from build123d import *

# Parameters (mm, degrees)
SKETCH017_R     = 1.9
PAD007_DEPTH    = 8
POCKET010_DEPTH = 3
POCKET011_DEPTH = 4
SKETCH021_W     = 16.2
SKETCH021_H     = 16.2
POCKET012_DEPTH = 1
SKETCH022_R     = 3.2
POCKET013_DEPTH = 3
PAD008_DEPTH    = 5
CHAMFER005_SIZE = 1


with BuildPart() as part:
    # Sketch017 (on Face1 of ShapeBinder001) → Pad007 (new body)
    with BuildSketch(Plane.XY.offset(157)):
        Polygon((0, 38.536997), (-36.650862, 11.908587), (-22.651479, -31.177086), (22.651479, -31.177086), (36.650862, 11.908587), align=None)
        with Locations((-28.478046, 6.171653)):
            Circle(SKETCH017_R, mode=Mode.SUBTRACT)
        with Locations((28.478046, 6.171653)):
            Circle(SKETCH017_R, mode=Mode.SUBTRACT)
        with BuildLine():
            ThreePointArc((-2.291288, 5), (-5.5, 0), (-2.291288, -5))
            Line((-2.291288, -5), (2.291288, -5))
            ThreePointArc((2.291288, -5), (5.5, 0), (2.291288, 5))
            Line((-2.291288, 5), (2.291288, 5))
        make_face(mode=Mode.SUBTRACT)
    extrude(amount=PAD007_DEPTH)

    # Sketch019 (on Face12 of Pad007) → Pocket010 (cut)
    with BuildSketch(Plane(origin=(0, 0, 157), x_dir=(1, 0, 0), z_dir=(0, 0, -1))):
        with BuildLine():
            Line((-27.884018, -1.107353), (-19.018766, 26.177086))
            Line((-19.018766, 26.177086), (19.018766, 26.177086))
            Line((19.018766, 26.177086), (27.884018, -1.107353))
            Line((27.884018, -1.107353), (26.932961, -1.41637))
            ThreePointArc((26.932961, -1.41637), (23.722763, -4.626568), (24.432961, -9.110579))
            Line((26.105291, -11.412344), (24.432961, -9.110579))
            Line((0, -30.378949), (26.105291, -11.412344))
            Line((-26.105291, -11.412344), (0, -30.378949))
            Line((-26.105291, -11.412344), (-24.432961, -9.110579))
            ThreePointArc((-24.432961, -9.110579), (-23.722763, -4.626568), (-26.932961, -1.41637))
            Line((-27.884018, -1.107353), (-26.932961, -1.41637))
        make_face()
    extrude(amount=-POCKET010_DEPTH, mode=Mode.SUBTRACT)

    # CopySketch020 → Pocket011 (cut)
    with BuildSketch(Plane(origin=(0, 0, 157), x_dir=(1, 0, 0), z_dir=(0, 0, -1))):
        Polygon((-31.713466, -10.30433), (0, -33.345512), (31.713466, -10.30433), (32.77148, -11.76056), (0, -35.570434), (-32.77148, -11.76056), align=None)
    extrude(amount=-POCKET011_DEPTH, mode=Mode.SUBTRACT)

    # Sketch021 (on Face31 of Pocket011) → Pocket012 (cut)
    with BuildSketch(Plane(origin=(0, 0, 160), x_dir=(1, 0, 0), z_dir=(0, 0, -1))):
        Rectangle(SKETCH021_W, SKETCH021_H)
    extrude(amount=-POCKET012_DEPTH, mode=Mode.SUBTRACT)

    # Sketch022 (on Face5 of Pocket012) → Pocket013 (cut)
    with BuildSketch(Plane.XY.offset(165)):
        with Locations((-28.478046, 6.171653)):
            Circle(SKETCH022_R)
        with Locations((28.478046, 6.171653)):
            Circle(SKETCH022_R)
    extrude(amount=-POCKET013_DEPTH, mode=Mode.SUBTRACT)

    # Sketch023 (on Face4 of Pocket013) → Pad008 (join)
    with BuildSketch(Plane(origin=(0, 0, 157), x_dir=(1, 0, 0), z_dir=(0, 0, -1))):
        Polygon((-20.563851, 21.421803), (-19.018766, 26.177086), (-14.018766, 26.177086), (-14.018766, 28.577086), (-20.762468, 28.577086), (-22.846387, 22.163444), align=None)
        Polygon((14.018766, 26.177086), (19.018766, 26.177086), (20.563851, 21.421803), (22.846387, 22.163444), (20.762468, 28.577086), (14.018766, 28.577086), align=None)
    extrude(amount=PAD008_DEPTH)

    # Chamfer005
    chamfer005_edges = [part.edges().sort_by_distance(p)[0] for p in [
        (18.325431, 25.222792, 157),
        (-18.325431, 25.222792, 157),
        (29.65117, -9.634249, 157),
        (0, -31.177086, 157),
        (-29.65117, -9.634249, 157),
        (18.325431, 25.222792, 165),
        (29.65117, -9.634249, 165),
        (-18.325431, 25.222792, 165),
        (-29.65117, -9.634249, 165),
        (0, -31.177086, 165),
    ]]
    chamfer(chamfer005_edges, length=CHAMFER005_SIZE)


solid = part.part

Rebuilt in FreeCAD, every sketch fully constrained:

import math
import FreeCAD as App
import Part
import Sketcher

V = App.Vector
Q = App.Units.Quantity


def edges_at(feature, points):
    """Names of the edges that pass closest to the given points."""
    edges = feature.Shape.Edges
    near = lambda p: min(range(len(edges)), key=lambda i: edges[i].distToShape(Part.Vertex(*p))[0])
    return sorted({f"Edge{near(p) + 1}" for p in points})

doc = App.newDocument("Part")
body = doc.addObject("PartDesign::Body", "Body")

# Sketch on XY plane
sketch1 = body.newObject("Sketcher::SketchObject", "Sketch")
sketch1.AttachmentSupport = (doc.getObject("XY_Plane"), [""])
sketch1.MapMode = "FlatFace"
sketch1.AttachmentOffset = App.Placement(V(0, 0, 157), App.Rotation())
sketch1.addGeometry([
    Part.LineSegment(V(0, 38.5, 0), V(-36.7, 11.9, 0)),  # 0
    Part.LineSegment(V(-36.7, 11.9, 0), V(-22.7, -31.2, 0)),  # 1
    Part.LineSegment(V(-22.7, -31.2, 0), V(22.7, -31.2, 0)),  # 2
    Part.LineSegment(V(22.7, -31.2, 0), V(36.7, 11.9, 0)),  # 3
    Part.LineSegment(V(36.7, 11.9, 0), V(0, 38.5, 0)),  # 4
    Part.ArcOfCircle(Part.Circle(V(0, 0, 0), V(0, 0, 1), 5.5), math.radians(115), math.radians(245)),  # 5
    Part.LineSegment(V(-2.3, 5, 0), V(2.3, 5, 0)),  # 6
    Part.ArcOfCircle(Part.Circle(V(0, 0, 0), V(0, 0, 1), 5.5), math.radians(-65), math.radians(65)),  # 7
    Part.LineSegment(V(2.3, -5, 0), V(-2.3, -5, 0)),  # 8
    Part.Circle(V(-28.5, 6.2, 0), V(0, 0, 1), 1.9),  # 9
    Part.Circle(V(28.5, 6.2, 0), V(0, 0, 1), 1.9),  # 10
], False)
sketch1.addConstraint([
    Sketcher.Constraint("Coincident", 0, 2, 1, 1),
    Sketcher.Constraint("Coincident", 1, 2, 2, 1),
    Sketcher.Constraint("Coincident", 2, 2, 3, 1),
    Sketcher.Constraint("Coincident", 3, 2, 4, 1),
    Sketcher.Constraint("Coincident", 4, 2, 0, 1),
    Sketcher.Constraint("Coincident", 5, 1, 6, 1),
    Sketcher.Constraint("Coincident", 6, 2, 7, 2),
    Sketcher.Constraint("Coincident", 7, 1, 8, 1),
    Sketcher.Constraint("Coincident", 8, 2, 5, 2),
    Sketcher.Constraint("Horizontal", 2),
    Sketcher.Constraint("Horizontal", 6),
    Sketcher.Constraint("Horizontal", 8),
    Sketcher.Constraint("Coincident", 5, 3, -1, 1),
    Sketcher.Constraint("Coincident", 7, 3, -1, 1),
    Sketcher.Constraint("Equal", 5, 7),
    Sketcher.Constraint("Equal", 9, 10),
    Sketcher.Constraint("Symmetric", 9, 3, 10, 3, -2),
    Sketcher.Constraint("Symmetric", 0, 2, 3, 2, -2),
    Sketcher.Constraint("PointOnObject", 4, 2, -2),
    Sketcher.Constraint("Vertical", 6, 2, 7, 1),
    Sketcher.Constraint("Equal", 0, 1),
    Sketcher.Constraint("Equal", 1, 3),
    Sketcher.Constraint("Diameter", 9, 3.8),
    Sketcher.Constraint("Radius", 5, 5.5),
    Sketcher.Constraint("Angle", 0, Q("-144 deg")),
    Sketcher.Constraint("Angle", 1, Q("-72.000001 deg")),
    Sketcher.Constraint("DistanceY", -1, 1, 5, 1, 5.0),
    Sketcher.Constraint("DistanceX", 2, 1, 2, 2, 45.302958),
    Sketcher.Constraint("DistanceX", 9, 3, 10, 3, 56.956092),
    Sketcher.Constraint("DistanceY", 1, 2, 9, 3, 37.348739),
    Sketcher.Constraint("DistanceY", -1, 1, 9, 3, 6.171653),
])
pad1 = body.newObject("PartDesign::Pad", "Pad")
pad1.Profile = sketch1
pad1.Length = 8

# Sketch on XY plane
sketch2 = body.newObject("Sketcher::SketchObject", "Sketch001")
sketch2.AttachmentSupport = (doc.getObject("XY_Plane"), [""])
sketch2.MapMode = "FlatFace"
sketch2.AttachmentOffset = App.Placement(V(0, 0, 157), App.Rotation())
sketch2.addGeometry([
    Part.LineSegment(V(-19, -26.2, 0), V(-27.9, 1.1, 0)),  # 0
    Part.LineSegment(V(-27.9, 1.1, 0), V(-26.9, 1.4, 0)),  # 1
    Part.ArcOfCircle(Part.Circle(V(-28.5, 6.2, 0), V(0, 0, 1), 5), math.radians(-72), math.radians(36)),  # 2
    Part.LineSegment(V(-24.4, 9.1, 0), V(-26.1, 11.4, 0)),  # 3
    Part.LineSegment(V(-26.1, 11.4, 0), V(0, 30.4, 0)),  # 4
    Part.LineSegment(V(0, 30.4, 0), V(26.1, 11.4, 0)),  # 5
    Part.LineSegment(V(26.1, 11.4, 0), V(24.4, 9.1, 0)),  # 6
    Part.ArcOfCircle(Part.Circle(V(28.5, 6.2, 0), V(0, 0, 1), 5), math.radians(144), math.radians(252)),  # 7
    Part.LineSegment(V(26.9, 1.4, 0), V(27.9, 1.1, 0)),  # 8
    Part.LineSegment(V(27.9, 1.1, 0), V(19, -26.2, 0)),  # 9
    Part.LineSegment(V(19, -26.2, 0), V(-19, -26.2, 0)),  # 10
], False)
sketch2.addConstraint([
    Sketcher.Constraint("Coincident", 0, 2, 1, 1),
    Sketcher.Constraint("Tangent", 1, 2, 2, 1),
    Sketcher.Constraint("Tangent", 2, 2, 3, 1),
    Sketcher.Constraint("Coincident", 3, 2, 4, 1),
    Sketcher.Constraint("Coincident", 4, 2, 5, 1),
    Sketcher.Constraint("Coincident", 5, 2, 6, 1),
    Sketcher.Constraint("Tangent", 6, 2, 7, 1),
    Sketcher.Constraint("Tangent", 7, 2, 8, 1),
    Sketcher.Constraint("Coincident", 8, 2, 9, 1),
    Sketcher.Constraint("Coincident", 9, 2, 10, 1),
    Sketcher.Constraint("Coincident", 10, 2, 0, 1),
    Sketcher.Constraint("Horizontal", 10),
    Sketcher.Constraint("Equal", 2, 7),
    Sketcher.Constraint("Symmetric", 2, 3, 7, 3, -2),
    Sketcher.Constraint("Symmetric", 3, 2, 5, 2, -2),
    Sketcher.Constraint("Symmetric", 0, 2, 8, 2, -2),
    Sketcher.Constraint("PointOnObject", 4, 2, -2),
    Sketcher.Constraint("Perpendicular", 0, 1),
    Sketcher.Constraint("Perpendicular", 3, 4),
    Sketcher.Constraint("Perpendicular", 8, 9),
    Sketcher.Constraint("Radius", 2, 5.0),
    Sketcher.Constraint("Angle", 0, Q("108.000001 deg")),
    Sketcher.Constraint("Angle", 3, Q("125.999997 deg")),
    Sketcher.Constraint("Distance", 1, 1.0),
    Sketcher.Constraint("DistanceX", 10, 2, 10, 1, 38.037532),
    Sketcher.Constraint("DistanceX", 0, 2, -1, 1, 27.884018),
    Sketcher.Constraint("DistanceY", -1, 1, 1, 2, 1.41637),
    Sketcher.Constraint("DistanceX", 3, 2, -1, 1, 26.105291),
])
pocket1 = body.newObject("PartDesign::Pocket", "Pocket")
pocket1.Profile = sketch2
pocket1.Length = 3
pocket1.Reversed = True

# Sketch on XY plane
sketch3 = body.newObject("Sketcher::SketchObject", "Sketch002")
sketch3.AttachmentSupport = (doc.getObject("XY_Plane"), [""])
sketch3.MapMode = "FlatFace"
sketch3.AttachmentOffset = App.Placement(V(0, 0, 157), App.Rotation())
sketch3.addGeometry([
    Part.LineSegment(V(0, 33.3, 0), V(-31.7, 10.3, 0)),  # 0
    Part.LineSegment(V(-31.7, 10.3, 0), V(-32.8, 11.8, 0)),  # 1
    Part.LineSegment(V(-32.8, 11.8, 0), V(0, 35.6, 0)),  # 2
    Part.LineSegment(V(0, 35.6, 0), V(32.8, 11.8, 0)),  # 3
    Part.LineSegment(V(32.8, 11.8, 0), V(31.7, 10.3, 0)),  # 4
    Part.LineSegment(V(31.7, 10.3, 0), V(0, 33.3, 0)),  # 5
], False)
sketch3.addConstraint([
    Sketcher.Constraint("Coincident", 0, 2, 1, 1),
    Sketcher.Constraint("Coincident", 1, 2, 2, 1),
    Sketcher.Constraint("Coincident", 2, 2, 3, 1),
    Sketcher.Constraint("Coincident", 3, 2, 4, 1),
    Sketcher.Constraint("Coincident", 4, 2, 5, 1),
    Sketcher.Constraint("Coincident", 5, 2, 0, 1),
    Sketcher.Constraint("Symmetric", 1, 2, 3, 2, -2),
    Sketcher.Constraint("Symmetric", 0, 2, 4, 2, -2),
    Sketcher.Constraint("PointOnObject", 2, 2, -2),
    Sketcher.Constraint("PointOnObject", 5, 2, -2),
    Sketcher.Constraint("Perpendicular", 0, 1),
    Sketcher.Constraint("Perpendicular", 1, 2),
    Sketcher.Constraint("Angle", 0, Q("-144 deg")),
    Sketcher.Constraint("Distance", 0, 39.2),
    Sketcher.Constraint("Distance", 1, 1.8),
    Sketcher.Constraint("DistanceY", -1, 1, 0, 2, 10.30433),
])
pocket2 = body.newObject("PartDesign::Pocket", "Pocket001")
pocket2.Profile = sketch3
pocket2.Length = 4
pocket2.Reversed = True

# Sketch on XY plane
sketch4 = body.newObject("Sketcher::SketchObject", "Sketch003")
sketch4.AttachmentSupport = (doc.getObject("XY_Plane"), [""])
sketch4.MapMode = "FlatFace"
sketch4.AttachmentOffset = App.Placement(V(0, 0, 160), App.Rotation())
sketch4.addGeometry([
    Part.LineSegment(V(-8, -8, 0), V(-8, 8, 0)),
    Part.LineSegment(V(-8, 8, 0), V(8, 8, 0)),
    Part.LineSegment(V(8, 8, 0), V(8, -8, 0)),
    Part.LineSegment(V(8, -8, 0), V(-8, -8, 0)),
], False)
sketch4.addConstraint([
    Sketcher.Constraint("Coincident", 0, 2, 1, 1),
    Sketcher.Constraint("Coincident", 1, 2, 2, 1),
    Sketcher.Constraint("Coincident", 2, 2, 3, 1),
    Sketcher.Constraint("Coincident", 3, 2, 0, 1),
    Sketcher.Constraint("Vertical", 0),
    Sketcher.Constraint("Horizontal", 1),
    Sketcher.Constraint("Vertical", 2),
    Sketcher.Constraint("Horizontal", 3),
    Sketcher.Constraint("Symmetric", 0, 2, 2, 2, -1, 1),
    Sketcher.Constraint("Equal", 3, 0),
    Sketcher.Constraint("DistanceX", 1, 1, 1, 2, 16.2),
])
pocket3 = body.newObject("PartDesign::Pocket", "Pocket002")
pocket3.Profile = sketch4
pocket3.Length = 1
pocket3.Reversed = True

# Sketch on XY plane
sketch5 = body.newObject("Sketcher::SketchObject", "Sketch004")
sketch5.AttachmentSupport = (doc.getObject("XY_Plane"), [""])
sketch5.MapMode = "FlatFace"
sketch5.AttachmentOffset = App.Placement(V(0, 0, 165), App.Rotation())
sketch5.addGeometry([
    Part.Circle(V(-28.5, 6.2, 0), V(0, 0, 1), 3.2),
    Part.Circle(V(28.5, 6.2, 0), V(0, 0, 1), 3.2),
], False)
sketch5.addConstraint([
    Sketcher.Constraint("Equal", 0, 1),
    Sketcher.Constraint("Symmetric", 0, 3, 1, 3, -2),
    Sketcher.Constraint("Diameter", 0, 6.4),
    Sketcher.Constraint("DistanceX", 0, 3, 1, 3, 56.956092),
    Sketcher.Constraint("DistanceY", -1, 1, 0, 3, 6.171653),
])
pocket4 = body.newObject("PartDesign::Pocket", "Pocket003")
pocket4.Profile = sketch5
pocket4.Length = 3

# Sketch on XY plane
sketch6 = body.newObject("Sketcher::SketchObject", "Sketch005")
sketch6.AttachmentSupport = (doc.getObject("XY_Plane"), [""])
sketch6.MapMode = "FlatFace"
sketch6.AttachmentOffset = App.Placement(V(0, 0, 157), App.Rotation())
sketch6.addGeometry([
    Part.LineSegment(V(-20.6, -21.4, 0), V(-19, -26.2, 0)),  # 0
    Part.LineSegment(V(-19, -26.2, 0), V(-14, -26.2, 0)),  # 1
    Part.LineSegment(V(-14, -26.2, 0), V(-14, -28.6, 0)),  # 2
    Part.LineSegment(V(-14, -28.6, 0), V(-20.8, -28.6, 0)),  # 3
    Part.LineSegment(V(-20.8, -28.6, 0), V(-22.8, -22.2, 0)),  # 4
    Part.LineSegment(V(-22.8, -22.2, 0), V(-20.6, -21.4, 0)),  # 5
    Part.LineSegment(V(14, -26.2, 0), V(19, -26.2, 0)),  # 6
    Part.LineSegment(V(19, -26.2, 0), V(20.6, -21.4, 0)),  # 7
    Part.LineSegment(V(20.6, -21.4, 0), V(22.8, -22.2, 0)),  # 8
    Part.LineSegment(V(22.8, -22.2, 0), V(20.8, -28.6, 0)),  # 9
    Part.LineSegment(V(20.8, -28.6, 0), V(14, -28.6, 0)),  # 10
    Part.LineSegment(V(14, -28.6, 0), V(14, -26.2, 0)),  # 11
], False)
sketch6.addConstraint([
    Sketcher.Constraint("Coincident", 0, 2, 1, 1),
    Sketcher.Constraint("Coincident", 1, 2, 2, 1),
    Sketcher.Constraint("Coincident", 2, 2, 3, 1),
    Sketcher.Constraint("Coincident", 3, 2, 4, 1),
    Sketcher.Constraint("Coincident", 4, 2, 5, 1),
    Sketcher.Constraint("Coincident", 5, 2, 0, 1),
    Sketcher.Constraint("Coincident", 6, 2, 7, 1),
    Sketcher.Constraint("Coincident", 7, 2, 8, 1),
    Sketcher.Constraint("Coincident", 8, 2, 9, 1),
    Sketcher.Constraint("Coincident", 9, 2, 10, 1),
    Sketcher.Constraint("Coincident", 10, 2, 11, 1),
    Sketcher.Constraint("Coincident", 11, 2, 6, 1),
    Sketcher.Constraint("Horizontal", 1),
    Sketcher.Constraint("Vertical", 2),
    Sketcher.Constraint("Horizontal", 3),
    Sketcher.Constraint("Horizontal", 6),
    Sketcher.Constraint("Horizontal", 10),
    Sketcher.Constraint("Vertical", 11),
    Sketcher.Constraint("Symmetric", 0, 2, 6, 2, -2),
    Sketcher.Constraint("Symmetric", 5, 2, 7, 2, -2),
    Sketcher.Constraint("Symmetric", 4, 2, 8, 2, -2),
    Sketcher.Constraint("Symmetric", 3, 2, 9, 2, -2),
    Sketcher.Constraint("Parallel", 0, 4),
    Sketcher.Constraint("Perpendicular", 4, 5),
    Sketcher.Constraint("Equal", 1, 6),
    Sketcher.Constraint("DistanceX", 1, 1, 1, 2, 5.0),
    Sketcher.Constraint("Angle", 0, Q("-72.000001 deg")),
    Sketcher.Constraint("Distance", 0, 5.0),
    Sketcher.Constraint("DistanceY", 2, 2, 2, 1, 2.4),
    Sketcher.Constraint("Distance", 5, 2.4),
    Sketcher.Constraint("DistanceX", 5, 2, -1, 1, 20.563851),
    Sketcher.Constraint("DistanceY", 0, 2, -1, 1, 26.177086),
])
pad2 = body.newObject("PartDesign::Pad", "Pad001")
pad2.Profile = sketch6
pad2.Length = 5
pad2.Reversed = True
doc.recompute()

chamfer = body.newObject("PartDesign::Chamfer", "Chamfer")
chamfer.Base = (pad2, edges_at(pad2, [
    (18.325, 25.223, 157),
    (-18.325, 25.223, 157),
    (29.651, -9.634, 157),
    (0, -31.177, 157),
    (-29.651, -9.634, 157),
    (18.325, 25.223, 165),
    (29.651, -9.634, 165),
    (-18.325, 25.223, 165),
    (-29.651, -9.634, 165),
    (0, -31.177, 165),
]))
chamfer.Size = 1

doc.recompute()
